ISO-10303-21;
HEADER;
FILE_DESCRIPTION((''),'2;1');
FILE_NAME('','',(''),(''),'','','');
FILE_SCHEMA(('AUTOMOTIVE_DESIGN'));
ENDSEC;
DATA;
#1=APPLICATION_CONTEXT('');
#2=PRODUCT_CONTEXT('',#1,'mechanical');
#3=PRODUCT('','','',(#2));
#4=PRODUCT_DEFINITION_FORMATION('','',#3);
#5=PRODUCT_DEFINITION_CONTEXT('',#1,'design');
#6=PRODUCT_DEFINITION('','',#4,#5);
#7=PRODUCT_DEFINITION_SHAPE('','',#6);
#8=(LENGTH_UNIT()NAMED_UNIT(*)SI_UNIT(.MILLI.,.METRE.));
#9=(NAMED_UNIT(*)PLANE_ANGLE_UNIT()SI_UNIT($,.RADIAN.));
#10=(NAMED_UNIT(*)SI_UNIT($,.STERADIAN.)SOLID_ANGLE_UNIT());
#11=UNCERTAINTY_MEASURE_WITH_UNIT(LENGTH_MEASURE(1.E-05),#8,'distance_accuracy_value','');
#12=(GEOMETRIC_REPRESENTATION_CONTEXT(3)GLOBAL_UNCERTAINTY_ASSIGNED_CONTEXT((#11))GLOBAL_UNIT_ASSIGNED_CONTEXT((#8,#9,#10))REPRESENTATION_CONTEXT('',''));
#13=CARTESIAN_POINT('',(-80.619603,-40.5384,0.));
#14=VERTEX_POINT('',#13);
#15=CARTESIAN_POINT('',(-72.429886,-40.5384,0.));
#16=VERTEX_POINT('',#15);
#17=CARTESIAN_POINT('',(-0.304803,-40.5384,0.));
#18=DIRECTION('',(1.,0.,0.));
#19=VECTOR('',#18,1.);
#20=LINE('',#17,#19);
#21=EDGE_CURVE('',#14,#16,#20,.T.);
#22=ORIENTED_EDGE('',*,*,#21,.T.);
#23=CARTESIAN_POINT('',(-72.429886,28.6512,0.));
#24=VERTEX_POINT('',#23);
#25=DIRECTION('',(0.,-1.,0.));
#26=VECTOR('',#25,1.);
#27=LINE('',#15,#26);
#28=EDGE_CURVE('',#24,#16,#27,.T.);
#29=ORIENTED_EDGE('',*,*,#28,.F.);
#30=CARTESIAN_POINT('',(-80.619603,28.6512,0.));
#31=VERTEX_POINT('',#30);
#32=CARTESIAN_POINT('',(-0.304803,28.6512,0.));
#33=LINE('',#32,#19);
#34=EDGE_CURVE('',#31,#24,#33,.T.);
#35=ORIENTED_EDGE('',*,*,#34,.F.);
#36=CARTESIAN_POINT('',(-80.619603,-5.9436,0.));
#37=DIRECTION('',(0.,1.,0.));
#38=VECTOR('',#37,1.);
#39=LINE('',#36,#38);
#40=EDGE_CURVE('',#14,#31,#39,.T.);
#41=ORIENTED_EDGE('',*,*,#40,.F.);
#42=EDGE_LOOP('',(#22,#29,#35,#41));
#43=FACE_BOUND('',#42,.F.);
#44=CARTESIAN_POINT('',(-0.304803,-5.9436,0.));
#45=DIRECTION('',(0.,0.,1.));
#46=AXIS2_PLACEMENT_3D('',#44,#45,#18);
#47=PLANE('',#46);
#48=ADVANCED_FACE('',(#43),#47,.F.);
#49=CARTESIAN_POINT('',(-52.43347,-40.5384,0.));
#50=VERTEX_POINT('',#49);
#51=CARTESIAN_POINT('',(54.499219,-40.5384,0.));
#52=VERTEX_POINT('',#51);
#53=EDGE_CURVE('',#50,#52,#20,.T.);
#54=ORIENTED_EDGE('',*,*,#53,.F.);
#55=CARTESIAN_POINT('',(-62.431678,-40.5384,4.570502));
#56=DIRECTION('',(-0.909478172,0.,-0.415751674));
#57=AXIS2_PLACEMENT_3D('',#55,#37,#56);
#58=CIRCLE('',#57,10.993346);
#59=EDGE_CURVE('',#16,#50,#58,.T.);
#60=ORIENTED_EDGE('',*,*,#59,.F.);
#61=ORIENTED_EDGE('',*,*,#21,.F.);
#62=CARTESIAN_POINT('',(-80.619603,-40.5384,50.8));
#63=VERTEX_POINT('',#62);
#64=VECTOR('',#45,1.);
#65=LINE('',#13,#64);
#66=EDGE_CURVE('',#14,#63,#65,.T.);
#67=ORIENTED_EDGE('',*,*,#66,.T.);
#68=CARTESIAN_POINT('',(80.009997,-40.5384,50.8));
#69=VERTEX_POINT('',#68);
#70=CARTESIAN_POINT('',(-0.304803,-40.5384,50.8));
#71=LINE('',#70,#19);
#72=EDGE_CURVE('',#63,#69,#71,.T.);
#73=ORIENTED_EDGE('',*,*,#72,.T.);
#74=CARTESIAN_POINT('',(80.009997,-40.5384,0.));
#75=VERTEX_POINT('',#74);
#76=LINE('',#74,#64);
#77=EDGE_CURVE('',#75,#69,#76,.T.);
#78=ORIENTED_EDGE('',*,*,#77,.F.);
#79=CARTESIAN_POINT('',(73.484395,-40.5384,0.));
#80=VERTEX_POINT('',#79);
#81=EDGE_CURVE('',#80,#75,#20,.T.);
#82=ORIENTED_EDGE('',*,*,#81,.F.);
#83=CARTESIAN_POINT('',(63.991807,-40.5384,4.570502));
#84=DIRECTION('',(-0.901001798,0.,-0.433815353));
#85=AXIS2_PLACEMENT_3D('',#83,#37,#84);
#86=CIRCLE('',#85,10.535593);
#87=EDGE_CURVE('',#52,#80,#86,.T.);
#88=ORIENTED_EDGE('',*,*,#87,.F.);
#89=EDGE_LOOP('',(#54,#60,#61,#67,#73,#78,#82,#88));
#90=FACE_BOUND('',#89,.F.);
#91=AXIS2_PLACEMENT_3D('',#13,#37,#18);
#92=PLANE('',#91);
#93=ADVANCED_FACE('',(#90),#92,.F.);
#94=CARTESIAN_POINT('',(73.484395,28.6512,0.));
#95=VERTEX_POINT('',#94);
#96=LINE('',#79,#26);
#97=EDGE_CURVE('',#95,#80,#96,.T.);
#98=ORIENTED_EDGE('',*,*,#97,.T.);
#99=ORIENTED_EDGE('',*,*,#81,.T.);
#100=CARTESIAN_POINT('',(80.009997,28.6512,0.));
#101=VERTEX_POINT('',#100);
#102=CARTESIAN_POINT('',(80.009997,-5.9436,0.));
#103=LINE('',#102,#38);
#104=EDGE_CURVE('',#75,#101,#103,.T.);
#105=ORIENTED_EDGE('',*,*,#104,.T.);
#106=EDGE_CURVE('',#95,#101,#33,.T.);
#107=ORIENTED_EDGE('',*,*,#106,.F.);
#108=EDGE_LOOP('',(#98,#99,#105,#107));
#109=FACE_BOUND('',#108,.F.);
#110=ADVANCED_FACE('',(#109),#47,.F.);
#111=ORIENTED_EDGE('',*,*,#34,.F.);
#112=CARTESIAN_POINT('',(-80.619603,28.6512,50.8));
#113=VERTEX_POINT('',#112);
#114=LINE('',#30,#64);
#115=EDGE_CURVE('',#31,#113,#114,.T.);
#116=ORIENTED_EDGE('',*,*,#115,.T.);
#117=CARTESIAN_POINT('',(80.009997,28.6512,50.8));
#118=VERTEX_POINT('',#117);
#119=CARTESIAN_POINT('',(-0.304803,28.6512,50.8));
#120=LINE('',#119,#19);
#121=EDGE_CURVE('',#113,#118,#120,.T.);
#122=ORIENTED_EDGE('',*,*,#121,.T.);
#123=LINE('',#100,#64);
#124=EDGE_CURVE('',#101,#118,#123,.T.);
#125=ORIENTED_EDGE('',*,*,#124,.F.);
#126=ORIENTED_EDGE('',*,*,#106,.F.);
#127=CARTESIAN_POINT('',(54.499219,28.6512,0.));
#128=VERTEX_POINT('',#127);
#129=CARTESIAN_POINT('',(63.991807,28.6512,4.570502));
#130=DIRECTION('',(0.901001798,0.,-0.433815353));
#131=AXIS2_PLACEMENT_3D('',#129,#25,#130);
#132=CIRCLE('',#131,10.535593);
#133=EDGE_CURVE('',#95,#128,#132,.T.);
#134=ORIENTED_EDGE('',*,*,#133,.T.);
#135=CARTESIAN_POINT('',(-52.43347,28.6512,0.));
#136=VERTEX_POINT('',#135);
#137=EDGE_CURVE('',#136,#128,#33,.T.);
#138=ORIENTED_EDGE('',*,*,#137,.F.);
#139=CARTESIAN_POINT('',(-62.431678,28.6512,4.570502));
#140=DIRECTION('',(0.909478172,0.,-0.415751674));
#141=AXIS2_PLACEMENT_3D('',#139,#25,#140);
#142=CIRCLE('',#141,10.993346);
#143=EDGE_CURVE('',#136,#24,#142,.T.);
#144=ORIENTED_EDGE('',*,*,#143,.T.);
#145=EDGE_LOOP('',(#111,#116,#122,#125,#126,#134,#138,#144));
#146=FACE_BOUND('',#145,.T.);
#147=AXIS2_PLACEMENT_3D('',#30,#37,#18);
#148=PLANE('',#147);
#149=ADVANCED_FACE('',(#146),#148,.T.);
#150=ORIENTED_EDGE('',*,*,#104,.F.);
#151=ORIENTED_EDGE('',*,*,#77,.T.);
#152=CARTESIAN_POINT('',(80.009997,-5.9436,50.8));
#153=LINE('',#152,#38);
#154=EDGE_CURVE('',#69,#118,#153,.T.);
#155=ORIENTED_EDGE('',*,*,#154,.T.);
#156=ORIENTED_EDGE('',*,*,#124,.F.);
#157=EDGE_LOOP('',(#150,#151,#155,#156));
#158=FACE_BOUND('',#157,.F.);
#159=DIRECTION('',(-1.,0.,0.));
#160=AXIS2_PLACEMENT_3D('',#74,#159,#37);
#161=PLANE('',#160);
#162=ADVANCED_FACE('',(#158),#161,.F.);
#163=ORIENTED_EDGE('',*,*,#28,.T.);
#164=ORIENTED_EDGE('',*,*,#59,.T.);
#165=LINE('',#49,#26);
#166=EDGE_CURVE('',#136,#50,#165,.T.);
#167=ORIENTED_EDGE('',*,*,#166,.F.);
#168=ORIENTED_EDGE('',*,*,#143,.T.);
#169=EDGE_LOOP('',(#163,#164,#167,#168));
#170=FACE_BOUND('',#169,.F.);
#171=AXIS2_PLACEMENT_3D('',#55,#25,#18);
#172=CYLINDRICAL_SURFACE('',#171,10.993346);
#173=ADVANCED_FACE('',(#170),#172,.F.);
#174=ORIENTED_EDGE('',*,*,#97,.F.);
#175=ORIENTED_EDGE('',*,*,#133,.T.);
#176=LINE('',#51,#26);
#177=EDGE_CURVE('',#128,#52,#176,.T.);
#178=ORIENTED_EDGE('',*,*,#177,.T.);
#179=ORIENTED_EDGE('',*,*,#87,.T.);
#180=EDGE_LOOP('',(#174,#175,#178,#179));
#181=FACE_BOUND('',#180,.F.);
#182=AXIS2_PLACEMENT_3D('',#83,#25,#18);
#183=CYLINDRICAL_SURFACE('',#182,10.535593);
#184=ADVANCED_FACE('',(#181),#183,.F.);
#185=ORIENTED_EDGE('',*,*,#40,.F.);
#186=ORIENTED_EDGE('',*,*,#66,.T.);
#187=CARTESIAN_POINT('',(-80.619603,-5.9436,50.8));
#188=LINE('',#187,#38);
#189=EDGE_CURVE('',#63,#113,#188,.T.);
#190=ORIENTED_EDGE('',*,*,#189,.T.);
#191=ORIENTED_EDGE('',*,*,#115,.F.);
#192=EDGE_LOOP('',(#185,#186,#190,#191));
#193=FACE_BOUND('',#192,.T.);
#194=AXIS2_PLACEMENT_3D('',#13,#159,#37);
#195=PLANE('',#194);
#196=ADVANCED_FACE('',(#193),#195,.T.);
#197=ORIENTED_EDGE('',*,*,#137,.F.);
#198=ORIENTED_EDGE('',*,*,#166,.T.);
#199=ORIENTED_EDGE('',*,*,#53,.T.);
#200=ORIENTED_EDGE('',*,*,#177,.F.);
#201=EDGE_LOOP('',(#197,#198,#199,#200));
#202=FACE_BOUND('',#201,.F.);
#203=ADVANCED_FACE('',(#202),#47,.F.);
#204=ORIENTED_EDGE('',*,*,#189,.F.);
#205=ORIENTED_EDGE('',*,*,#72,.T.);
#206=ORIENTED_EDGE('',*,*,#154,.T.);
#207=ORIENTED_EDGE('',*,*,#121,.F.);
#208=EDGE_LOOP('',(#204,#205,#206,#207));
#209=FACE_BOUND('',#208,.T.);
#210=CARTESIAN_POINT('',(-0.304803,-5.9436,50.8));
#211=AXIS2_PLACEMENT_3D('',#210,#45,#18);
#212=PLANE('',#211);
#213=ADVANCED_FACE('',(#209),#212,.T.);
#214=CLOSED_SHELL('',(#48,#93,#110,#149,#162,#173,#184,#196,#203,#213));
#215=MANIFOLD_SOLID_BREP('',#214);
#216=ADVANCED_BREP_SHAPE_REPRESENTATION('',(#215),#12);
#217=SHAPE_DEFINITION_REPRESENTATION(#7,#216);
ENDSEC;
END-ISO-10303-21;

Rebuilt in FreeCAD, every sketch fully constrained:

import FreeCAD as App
import Part
import Sketcher
from FreeCAD import Vector
Q = App.Units.Quantity

doc = App.newDocument("Part")
body = doc.addObject("PartDesign::Body", "Body")

sketch1 = body.newObject("Sketcher::SketchObject", "Sketch")
sketch1.AttachmentSupport = (doc.getObject("XY_Plane"), [""])
sketch1.MapMode = "FlatFace"
sketch1.addGeometry(Part.LineSegment(Vector(-81, 29, 0), Vector(-81, -41, 0)), False)
sketch1.addGeometry(Part.LineSegment(Vector(-81, -41, 0), Vector(80, -41, 0)), False)
sketch1.addGeometry(Part.LineSegment(Vector(80, -41, 0), Vector(80, 29, 0)), False)
sketch1.addGeometry(Part.LineSegment(Vector(80, 29, 0), Vector(-81, 29, 0)), False)
sketch1.addConstraint(Sketcher.Constraint("Coincident", 0, 2, 1, 1))
sketch1.addConstraint(Sketcher.Constraint("Coincident", 1, 2, 2, 1))
sketch1.addConstraint(Sketcher.Constraint("Coincident", 2, 2, 3, 1))
sketch1.addConstraint(Sketcher.Constraint("Coincident", 3, 2, 0, 1))
sketch1.addConstraint(Sketcher.Constraint("Vertical", 0))
sketch1.addConstraint(Sketcher.Constraint("Horizontal", 1))
sketch1.addConstraint(Sketcher.Constraint("Vertical", 2))
sketch1.addConstraint(Sketcher.Constraint("Horizontal", 3))
sketch1.addConstraint(Sketcher.Constraint("DistanceX", 1, 1, 1, 2, Q("6.324 in")))
sketch1.addConstraint(Sketcher.Constraint("DistanceY", 0, 2, 0, 1, Q("2.724 in")))
sketch1.addConstraint(Sketcher.Constraint("DistanceX", -1, 1, 1, 2, Q("3.1499999 in")))
sketch1.addConstraint(Sketcher.Constraint("DistanceY", 0, 2, -1, 1, Q("1.596 in")))
pad1 = body.newObject("PartDesign::Pad", "Pad")
pad1.Profile = sketch1
pad1.Length = Q("2 in")

sketch2 = body.newObject("Sketcher::SketchObject", "Sketch001")
sketch2.AttachmentSupport = (doc.getObject("XZ_Plane"), [""])
sketch2.MapMode = "FlatFace"
sketch2.AttachmentOffset = App.Placement(Vector(0, 0, 1.596 * 25.4), App.Rotation())
sketch2.addGeometry(Part.Circle(Vector(-62, 5, 0), Vector(0, 0, 1), 11), False)
sketch2.addGeometry(Part.Circle(Vector(64, 5, 0), Vector(0, 0, 1), 11), False)
sketch2.addConstraint(Sketcher.Constraint("Horizontal", 0, 3, 1, 3))
sketch2.addConstraint(Sketcher.Constraint("Diameter", 0, Q("21.986692 mm")))
sketch2.addConstraint(Sketcher.Constraint("Diameter", 1, Q("21.071186 mm")))
sketch2.addConstraint(Sketcher.Constraint("DistanceX", 0, 3, -1, 1, Q("62.431678 mm")))
sketch2.addConstraint(Sketcher.Constraint("DistanceY", -1, 1, 0, 3, Q("4.570502 mm")))
sketch2.addConstraint(Sketcher.Constraint("DistanceX", -1, 1, 1, 3, Q("63.991807 mm")))
pocket1 = body.newObject("PartDesign::Pocket", "Pocket")
pocket1.Profile = sketch2
pocket1.Length = Q("5 in")

doc.recompute()
